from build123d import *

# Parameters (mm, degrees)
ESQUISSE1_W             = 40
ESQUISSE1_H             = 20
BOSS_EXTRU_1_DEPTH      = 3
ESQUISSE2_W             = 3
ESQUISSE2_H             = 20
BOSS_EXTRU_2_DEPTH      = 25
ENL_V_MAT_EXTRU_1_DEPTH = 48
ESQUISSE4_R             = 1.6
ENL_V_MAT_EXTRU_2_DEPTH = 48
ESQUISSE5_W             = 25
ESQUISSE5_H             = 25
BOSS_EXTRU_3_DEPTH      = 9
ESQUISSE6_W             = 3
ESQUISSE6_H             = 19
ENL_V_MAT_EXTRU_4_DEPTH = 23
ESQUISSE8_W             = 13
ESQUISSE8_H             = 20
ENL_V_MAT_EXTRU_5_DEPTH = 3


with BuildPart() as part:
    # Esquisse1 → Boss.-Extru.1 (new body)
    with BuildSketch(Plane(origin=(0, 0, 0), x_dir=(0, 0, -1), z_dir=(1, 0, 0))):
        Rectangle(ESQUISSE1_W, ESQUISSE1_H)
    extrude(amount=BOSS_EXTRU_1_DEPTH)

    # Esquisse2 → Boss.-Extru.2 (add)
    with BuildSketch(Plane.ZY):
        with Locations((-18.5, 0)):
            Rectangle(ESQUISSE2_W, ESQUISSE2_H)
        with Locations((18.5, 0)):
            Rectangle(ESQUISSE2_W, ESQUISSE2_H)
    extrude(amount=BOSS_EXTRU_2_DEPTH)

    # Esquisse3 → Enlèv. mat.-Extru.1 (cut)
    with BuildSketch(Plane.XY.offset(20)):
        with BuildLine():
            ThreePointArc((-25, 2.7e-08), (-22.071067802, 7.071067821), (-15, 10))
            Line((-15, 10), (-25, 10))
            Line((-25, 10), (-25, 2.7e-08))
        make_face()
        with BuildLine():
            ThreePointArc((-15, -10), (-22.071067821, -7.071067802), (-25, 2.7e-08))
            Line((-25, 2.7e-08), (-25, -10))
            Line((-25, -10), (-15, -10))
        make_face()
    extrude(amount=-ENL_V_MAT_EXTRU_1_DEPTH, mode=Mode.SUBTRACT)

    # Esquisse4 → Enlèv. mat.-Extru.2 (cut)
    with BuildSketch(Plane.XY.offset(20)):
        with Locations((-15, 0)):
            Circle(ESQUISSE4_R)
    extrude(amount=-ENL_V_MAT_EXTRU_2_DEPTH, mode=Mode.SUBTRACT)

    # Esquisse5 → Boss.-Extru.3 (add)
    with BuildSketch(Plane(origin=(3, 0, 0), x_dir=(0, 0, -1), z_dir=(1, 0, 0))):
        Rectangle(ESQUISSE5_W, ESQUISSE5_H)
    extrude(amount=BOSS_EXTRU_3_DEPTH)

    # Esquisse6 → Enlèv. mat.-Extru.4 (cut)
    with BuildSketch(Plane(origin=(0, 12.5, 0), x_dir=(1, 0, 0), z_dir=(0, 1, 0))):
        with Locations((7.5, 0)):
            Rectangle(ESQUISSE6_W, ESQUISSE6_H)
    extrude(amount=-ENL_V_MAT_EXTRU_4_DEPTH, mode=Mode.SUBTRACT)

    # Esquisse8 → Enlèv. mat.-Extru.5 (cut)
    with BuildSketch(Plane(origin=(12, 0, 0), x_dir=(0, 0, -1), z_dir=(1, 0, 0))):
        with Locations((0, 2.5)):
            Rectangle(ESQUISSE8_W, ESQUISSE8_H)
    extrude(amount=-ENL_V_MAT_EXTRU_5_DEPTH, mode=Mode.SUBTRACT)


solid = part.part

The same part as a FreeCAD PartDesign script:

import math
import FreeCAD as App
import Part
import Sketcher
from FreeCAD import Vector


def add_polygon(sketch, points):
    """Adds a closed chain of lines whose ends are joined by coincident constraints."""
    first, n = sketch.GeometryCount, len(points)
    for a, b in zip(points, points[1:] + points[:1]):
        sketch.addGeometry(Part.LineSegment(App.Vector(*a, 0), App.Vector(*b, 0)), False)
    for i in range(n):
        sketch.addConstraint(Sketcher.Constraint("Coincident", first + i, 2, first + (i + 1) % n, 1))

doc = App.newDocument("Part")
body = doc.addObject("PartDesign::Body", "Body")

sketch1 = body.newObject("Sketcher::SketchObject", "Sketch")
sketch1.AttachmentSupport = (doc.getObject("YZ_Plane"), [""])
sketch1.MapMode = "FlatFace"
add_polygon(sketch1, [(10, 20), (-10, 20), (-10, -20), (10, -20)])
sketch1.addConstraint([
    Sketcher.Constraint("Horizontal", 0),
    Sketcher.Constraint("Vertical", 1),
    Sketcher.Constraint("Horizontal", 2),
    Sketcher.Constraint("Vertical", 3),
    Sketcher.Constraint("Symmetric", 0, 2, 2, 2, -1, 1),
    Sketcher.Constraint("DistanceX", 0, 2, 0, 1, 20.0),
    Sketcher.Constraint("DistanceY", 1, 2, 1, 1, 40.0),
])
pad1 = body.newObject("PartDesign::Pad", "Pad")
pad1.Profile = sketch1
pad1.Length = 3

sketch2 = body.newObject("Sketcher::SketchObject", "Sketch001")
sketch2.AttachmentSupport = (doc.getObject("YZ_Plane"), [""])
sketch2.MapMode = "FlatFace"
add_polygon(sketch2, [(10, -20), (-10, -20), (-10, -17), (10, -17)])
add_polygon(sketch2, [(10, 17), (-10, 17), (-10, 20), (10, 20)])
sketch2.addConstraint([
    Sketcher.Constraint("Horizontal", 0),
    Sketcher.Constraint("Vertical", 1),
    Sketcher.Constraint("Horizontal", 2),
    Sketcher.Constraint("Vertical", 3),
    Sketcher.Constraint("Horizontal", 4),
    Sketcher.Constraint("Vertical", 5),
    Sketcher.Constraint("Horizontal", 6),
    Sketcher.Constraint("Vertical", 7),
    Sketcher.Constraint("Symmetric", 2, 2, 4, 2, -1, 1),
    Sketcher.Constraint("Symmetric", 0, 2, 6, 2, -1, 1),
    Sketcher.Constraint("Vertical", 1, 2, 4, 2),
    Sketcher.Constraint("DistanceX", 0, 2, 0, 1, 20.0),
    Sketcher.Constraint("DistanceY", 1, 1, 1, 2, 3.0),
    Sketcher.Constraint("DistanceY", 0, 2, -1, 1, 20.0),
])
pad2 = body.newObject("PartDesign::Pad", "Pad001")
pad2.Profile = sketch2
pad2.Length = 25
pad2.Reversed = True

sketch3 = body.newObject("Sketcher::SketchObject", "Sketch002")
sketch3.AttachmentSupport = (doc.getObject("XY_Plane"), [""])
sketch3.MapMode = "FlatFace"
sketch3.AttachmentOffset = App.Placement(Vector(0, 0, 20), App.Rotation())
sketch3.addGeometry([
    Part.ArcOfCircle(Part.Circle(Vector(-15, 0, 0), Vector(0, 0, 1), 10), math.radians(90), math.radians(180)),
    Part.LineSegment(Vector(-15, 10, 0), Vector(-25, 10, 0)),
    Part.LineSegment(Vector(-25, 10, 0), Vector(-25, 0, 0)),
    Part.ArcOfCircle(Part.Circle(Vector(-15, 0, 0), Vector(0, 0, 1), 10), math.radians(180), math.radians(270)),
    Part.LineSegment(Vector(-25, 0, 0), Vector(-25, -10, 0)),
    Part.LineSegment(Vector(-25, -10, 0), Vector(-15, -10, 0)),
], False)
sketch3.addConstraint([
    Sketcher.Constraint("Tangent", 0, 1, 1, 1),
    Sketcher.Constraint("Coincident", 1, 2, 2, 1),
    Sketcher.Constraint("Tangent", 2, 2, 0, 2),
    Sketcher.Constraint("Tangent", 3, 1, 4, 1),
    Sketcher.Constraint("Coincident", 4, 2, 5, 1),
    Sketcher.Constraint("Tangent", 5, 2, 3, 2),
    Sketcher.Constraint("Horizontal", 1),
    Sketcher.Constraint("Vertical", 2),
    Sketcher.Constraint("Vertical", 4),
    Sketcher.Constraint("Horizontal", 5),
    Sketcher.Constraint("Coincident", 3, 3, 0, 3),
    Sketcher.Constraint("Equal", 0, 3),
    Sketcher.Constraint("PointOnObject", 0, 3, -1),
    Sketcher.Constraint("Radius", 0, 10.0),
    Sketcher.Constraint("DistanceX", 0, 3, -1, 1, 15.0),
])
pocket1 = body.newObject("PartDesign::Pocket", "Pocket")
pocket1.Profile = sketch3
pocket1.Length = 48

sketch4 = body.newObject("Sketcher::SketchObject", "Sketch003")
sketch4.AttachmentSupport = (doc.getObject("XY_Plane"), [""])
sketch4.MapMode = "FlatFace"
sketch4.AttachmentOffset = App.Placement(Vector(0, 0, 20), App.Rotation())
sketch4.addGeometry(Part.Circle(Vector(-15, 0, 0), Vector(0, 0, 1), 1.6), False)
sketch4.addConstraint([
    Sketcher.Constraint("PointOnObject", 0, 3, -1),
    Sketcher.Constraint("Diameter", 0, 3.2),
    Sketcher.Constraint("DistanceX", 0, 3, -1, 1, 15.0),
])
pocket2 = body.newObject("PartDesign::Pocket", "Pocket001")
pocket2.Profile = sketch4
pocket2.Length = 48

sketch5 = body.newObject("Sketcher::SketchObject", "Sketch004")
sketch5.AttachmentSupport = (doc.getObject("YZ_Plane"), [""])
sketch5.MapMode = "FlatFace"
sketch5.AttachmentOffset = App.Placement(Vector(0, 0, 3), App.Rotation())
add_polygon(sketch5, [(12.5, 12.5), (-12.5, 12.5), (-12.5, -12.5), (12.5, -12.5)])
sketch5.addConstraint([
    Sketcher.Constraint("Horizontal", 0),
    Sketcher.Constraint("Vertical", 1),
    Sketcher.Constraint("Horizontal", 2),
    Sketcher.Constraint("Vertical", 3),
    Sketcher.Constraint("Symmetric", 0, 2, 2, 2, -1, 1),
    Sketcher.Constraint("Equal", 2, 1),
    Sketcher.Constraint("DistanceX", 0, 2, 0, 1, 25.0),
])
pad3 = body.newObject("PartDesign::Pad", "Pad002")
pad3.Profile = sketch5
pad3.Length = 9

sketch6 = body.newObject("Sketcher::SketchObject", "Sketch005")
sketch6.AttachmentSupport = (doc.getObject("XZ_Plane"), [""])
sketch6.MapMode = "FlatFace"
sketch6.AttachmentOffset = App.Placement(Vector(0, 0, -12.5), App.Rotation())
add_polygon(sketch6, [(6, -9.5), (6, 9.5), (9, 9.5), (9, -9.5)])
sketch6.addConstraint([
    Sketcher.Constraint("Vertical", 0),
    Sketcher.Constraint("Horizontal", 1),
    Sketcher.Constraint("Vertical", 2),
    Sketcher.Constraint("Horizontal", 3),
    Sketcher.Constraint("DistanceX", 1, 1, 1, 2, 3.0),
    Sketcher.Constraint("DistanceY", 0, 1, 0, 2, 19.0),
    Sketcher.Constraint("DistanceX", -1, 1, 0, 2, 6.0),
    Sketcher.Constraint("DistanceY", -1, 1, 0, 2, 9.5),
])
pocket3 = body.newObject("PartDesign::Pocket", "Pocket002")
pocket3.Profile = sketch6
pocket3.Length = 23
pocket3.Reversed = True

sketch7 = body.newObject("Sketcher::SketchObject", "Sketch006")
sketch7.AttachmentSupport = (doc.getObject("YZ_Plane"), [""])
sketch7.MapMode = "FlatFace"
sketch7.AttachmentOffset = App.Placement(Vector(0, 0, 12), App.Rotation())
add_polygon(sketch7, [(12.5, 6.5), (-7.5, 6.5), (-7.5, -6.5), (12.5, -6.5)])
sketch7.addConstraint([
    Sketcher.Constraint("Horizontal", 0),
    Sketcher.Constraint("Vertical", 1),
    Sketcher.Constraint("Horizontal", 2),
    Sketcher.Constraint("Vertical", 3),
    Sketcher.Constraint("DistanceX", 0, 2, 0, 1, 20.0),
    Sketcher.Constraint("DistanceY", 1, 2, 1, 1, 13.0),
    Sketcher.Constraint("DistanceX", 0, 2, -1, 1, 7.5),
    Sketcher.Constraint("DistanceY", -1, 1, 0, 2, 6.5),
])
pocket4 = body.newObject("PartDesign::Pocket", "Pocket003")
pocket4.Profile = sketch7
pocket4.Length = 3

doc.recompute()
